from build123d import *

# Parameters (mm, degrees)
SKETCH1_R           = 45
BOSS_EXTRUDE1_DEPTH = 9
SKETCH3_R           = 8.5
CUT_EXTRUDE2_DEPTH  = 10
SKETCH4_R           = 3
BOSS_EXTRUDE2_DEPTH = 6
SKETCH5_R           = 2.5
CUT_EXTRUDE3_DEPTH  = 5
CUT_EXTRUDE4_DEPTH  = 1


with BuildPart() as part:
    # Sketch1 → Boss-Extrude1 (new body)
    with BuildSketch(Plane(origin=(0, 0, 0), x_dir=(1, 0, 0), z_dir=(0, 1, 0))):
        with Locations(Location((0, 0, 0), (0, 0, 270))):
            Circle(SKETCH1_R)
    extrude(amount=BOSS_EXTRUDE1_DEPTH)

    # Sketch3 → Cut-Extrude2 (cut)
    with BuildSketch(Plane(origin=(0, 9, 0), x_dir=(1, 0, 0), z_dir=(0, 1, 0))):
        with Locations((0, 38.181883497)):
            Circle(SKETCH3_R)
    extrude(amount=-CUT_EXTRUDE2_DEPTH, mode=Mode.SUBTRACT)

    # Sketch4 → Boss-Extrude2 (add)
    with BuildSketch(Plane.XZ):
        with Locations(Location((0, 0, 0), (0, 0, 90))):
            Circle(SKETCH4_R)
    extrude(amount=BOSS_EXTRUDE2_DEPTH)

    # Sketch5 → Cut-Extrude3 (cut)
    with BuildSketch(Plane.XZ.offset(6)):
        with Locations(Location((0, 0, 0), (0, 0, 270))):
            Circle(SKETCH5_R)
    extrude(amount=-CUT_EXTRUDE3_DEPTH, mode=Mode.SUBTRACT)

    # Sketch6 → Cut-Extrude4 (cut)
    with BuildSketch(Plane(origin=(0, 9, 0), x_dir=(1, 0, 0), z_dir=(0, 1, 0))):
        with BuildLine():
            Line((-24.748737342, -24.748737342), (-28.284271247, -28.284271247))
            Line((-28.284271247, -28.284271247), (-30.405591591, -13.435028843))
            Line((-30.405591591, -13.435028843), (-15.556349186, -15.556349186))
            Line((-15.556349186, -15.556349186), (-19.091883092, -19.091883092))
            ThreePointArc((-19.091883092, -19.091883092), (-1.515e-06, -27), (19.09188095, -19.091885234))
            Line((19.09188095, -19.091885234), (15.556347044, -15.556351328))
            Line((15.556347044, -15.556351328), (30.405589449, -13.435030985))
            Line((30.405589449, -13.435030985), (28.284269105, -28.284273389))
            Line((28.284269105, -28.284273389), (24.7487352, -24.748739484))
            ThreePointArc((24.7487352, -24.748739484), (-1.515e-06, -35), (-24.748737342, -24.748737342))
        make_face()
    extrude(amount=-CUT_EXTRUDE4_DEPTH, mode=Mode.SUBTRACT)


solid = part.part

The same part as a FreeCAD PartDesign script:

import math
import FreeCAD as App
import Part
import Sketcher
from FreeCAD import Vector
Q = App.Units.Quantity

doc = App.newDocument("Part")
params = doc.addObject("Spreadsheet::Sheet", "Params")
for row, (alias, value) in enumerate([
    ("sketch1_diameter", "90 mm"),
    ("pad1_length", "9 mm"),
    ("sketch2_diameter", "17 mm"),
    ("pocket1_length", "10 mm"),
    ("sketch3_diameter", "6 mm"),
    ("pad2_length", "6 mm"),
    ("sketch4_diameter", "5 mm"),
    ("pocket2_length", "5 mm"),
    ("sketch5_radius", "35 mm"),
    ("sketch5_radius2", "27 mm"),
    ("sketch5_length", "5 mm"),
    ("sketch5_length2", "15 mm"),
    ("pocket3_length", "1 mm"),
], start=1):
    params.set(f"A{row}", alias)
    params.set(f"B{row}", "=" + value)
    params.setAlias(f"B{row}", alias)

body = doc.addObject("PartDesign::Body", "Body")

sketch1 = body.newObject("Sketcher::SketchObject", "Sketch")
sketch1.AttachmentSupport = (doc.getObject("XZ_Plane"), [""])
sketch1.MapMode = "FlatFace"
sketch1.addGeometry(Part.Circle(Vector(0, 0, 0), Vector(0, 0, 1), 45), False)
sketch1.addConstraint([
    Sketcher.Constraint("Coincident", 0, 3, -1, 1),
    Sketcher.Constraint("Diameter", 0, 90.0),
])
sketch1.setExpression("Constraints[1]", "Params.sketch1_diameter")
pad1 = body.newObject("PartDesign::Pad", "Pad")
pad1.Profile = sketch1
pad1.setExpression("Length", "Params.pad1_length")
pad1.Reversed = True

sketch2 = body.newObject("Sketcher::SketchObject", "Sketch001")
sketch2.AttachmentSupport = (doc.getObject("XZ_Plane"), [""])
sketch2.MapMode = "FlatFace"
sketch2.AttachmentOffset = App.Placement(Vector(0, 0, -9), App.Rotation())
sketch2.addGeometry(Part.Circle(Vector(0, -38, 0), Vector(0, 0, 1), 8), False)
sketch2.addConstraint([
    Sketcher.Constraint("PointOnObject", 0, 3, -2),
    Sketcher.Constraint("Diameter", 0, 17.0),
    Sketcher.Constraint("DistanceY", 0, 3, -1, 1, 38.181883),
])
sketch2.setExpression("Constraints[1]", "Params.sketch2_diameter")
pocket1 = body.newObject("PartDesign::Pocket", "Pocket")
pocket1.Profile = sketch2
pocket1.setExpression("Length", "Params.pocket1_length")
pocket1.Reversed = True

sketch3 = body.newObject("Sketcher::SketchObject", "Sketch002")
sketch3.AttachmentSupport = (doc.getObject("XZ_Plane"), [""])
sketch3.MapMode = "FlatFace"
sketch3.addGeometry(Part.Circle(Vector(0, 0, 0), Vector(0, 0, 1), 3), False)
sketch3.addConstraint([
    Sketcher.Constraint("Coincident", 0, 3, -1, 1),
    Sketcher.Constraint("Diameter", 0, 6.0),
])
sketch3.setExpression("Constraints[1]", "Params.sketch3_diameter")
pad2 = body.newObject("PartDesign::Pad", "Pad001")
pad2.Profile = sketch3
pad2.setExpression("Length", "Params.pad2_length")

sketch4 = body.newObject("Sketcher::SketchObject", "Sketch003")
sketch4.AttachmentSupport = (doc.getObject("XZ_Plane"), [""])
sketch4.MapMode = "FlatFace"
sketch4.AttachmentOffset = App.Placement(Vector(0, 0, 6), App.Rotation())
sketch4.addGeometry(Part.Circle(Vector(0, 0, 0), Vector(0, 0, 1), 2.5), False)
sketch4.addConstraint([
    Sketcher.Constraint("Coincident", 0, 3, -1, 1),
    Sketcher.Constraint("Diameter", 0, 5.0),
])
sketch4.setExpression("Constraints[1]", "Params.sketch4_diameter")
pocket2 = body.newObject("PartDesign::Pocket", "Pocket001")
pocket2.Profile = sketch4
pocket2.setExpression("Length", "Params.pocket2_length")

sketch5 = body.newObject("Sketcher::SketchObject", "Sketch004")
sketch5.AttachmentSupport = (doc.getObject("XZ_Plane"), [""])
sketch5.MapMode = "FlatFace"
sketch5.AttachmentOffset = App.Placement(Vector(0, 0, -9), App.Rotation())
sketch5.addGeometry([
    Part.LineSegment(Vector(-28.3, 28.3, 0), Vector(-24.7, 24.7, 0)),
    Part.ArcOfCircle(Part.Circle(Vector(0, 0, 0), Vector(0, 0, 1), 35), math.radians(45), math.radians(135)),
    Part.LineSegment(Vector(24.7, 24.7, 0), Vector(28.3, 28.3, 0)),
    Part.LineSegment(Vector(28.3, 28.3, 0), Vector(30.4, 13.4, 0)),
    Part.LineSegment(Vector(30.4, 13.4, 0), Vector(15.6, 15.6, 0)),
    Part.LineSegment(Vector(15.6, 15.6, 0), Vector(19.1, 19.1, 0)),
    Part.ArcOfCircle(Part.Circle(Vector(0, 0, 0), Vector(0, 0, 1), 27), math.radians(45), math.radians(135)),
    Part.LineSegment(Vector(-19.1, 19.1, 0), Vector(-15.6, 15.6, 0)),
    Part.LineSegment(Vector(-15.6, 15.6, 0), Vector(-30.4, 13.4, 0)),
    Part.LineSegment(Vector(-30.4, 13.4, 0), Vector(-28.3, 28.3, 0)),
], False)
sketch5.addConstraint([
    Sketcher.Constraint("Coincident", 0, 2, 1, 2),
    Sketcher.Constraint("Coincident", 1, 1, 2, 1),
    Sketcher.Constraint("Coincident", 2, 2, 3, 1),
    Sketcher.Constraint("Coincident", 3, 2, 4, 1),
    Sketcher.Constraint("Coincident", 4, 2, 5, 1),
    Sketcher.Constraint("Coincident", 5, 2, 6, 1),
    Sketcher.Constraint("Coincident", 6, 2, 7, 1),
    Sketcher.Constraint("Coincident", 7, 2, 8, 1),
    Sketcher.Constraint("Coincident", 8, 2, 9, 1),
    Sketcher.Constraint("Coincident", 9, 2, 0, 1),
    Sketcher.Constraint("Coincident", 1, 3, -1, 1),
    Sketcher.Constraint("Coincident", 6, 3, -1, 1),
    Sketcher.Constraint("Symmetric", 4, 2, 7, 2, -2),
    Sketcher.Constraint("Symmetric", 3, 2, 8, 2, -2),
    Sketcher.Constraint("Symmetric", 2, 2, 9, 2, -2),
    Sketcher.Constraint("Perpendicular", 0, 2),
    Sketcher.Constraint("Parallel", 2, 5),
    Sketcher.Constraint("Perpendicular", 5, 7),
    Sketcher.Constraint("Perpendicular", 3, 8),
    Sketcher.Constraint("Equal", 3, 4),
    Sketcher.Constraint("Equal", 2, 5),
    Sketcher.Constraint("Radius", 1, 35.0),
    Sketcher.Constraint("Radius", 6, 27.0),
    Sketcher.Constraint("Angle", 0, Q("-45 deg")),
    Sketcher.Constraint("Distance", 0, 5.0),
    Sketcher.Constraint("Distance", 3, 15.0),
    Sketcher.Constraint("DistanceY", -1, 1, 1, 1, 24.748739),
])
sketch5.setExpression("Constraints[21]", "Params.sketch5_radius")
sketch5.setExpression("Constraints[22]", "Params.sketch5_radius2")
sketch5.setExpression("Constraints[24]", "Params.sketch5_length")
sketch5.setExpression("Constraints[25]", "Params.sketch5_length2")
pocket3 = body.newObject("PartDesign::Pocket", "Pocket002")
pocket3.Profile = sketch5
pocket3.setExpression("Length", "Params.pocket3_length")
pocket3.Reversed = True

doc.recompute()
